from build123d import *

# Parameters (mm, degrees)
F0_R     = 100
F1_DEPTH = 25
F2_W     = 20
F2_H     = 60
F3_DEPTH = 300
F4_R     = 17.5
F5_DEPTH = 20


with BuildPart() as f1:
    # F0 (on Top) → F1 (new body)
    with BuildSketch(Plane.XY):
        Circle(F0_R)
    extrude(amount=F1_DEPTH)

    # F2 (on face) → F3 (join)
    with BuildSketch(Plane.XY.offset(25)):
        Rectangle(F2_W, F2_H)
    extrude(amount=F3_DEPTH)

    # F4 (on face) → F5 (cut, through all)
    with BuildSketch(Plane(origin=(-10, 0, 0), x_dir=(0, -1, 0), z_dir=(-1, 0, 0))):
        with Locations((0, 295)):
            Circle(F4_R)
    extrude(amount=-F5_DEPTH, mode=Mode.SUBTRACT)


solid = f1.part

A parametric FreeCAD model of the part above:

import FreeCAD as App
import Part
import Sketcher

V = App.Vector


def add_polygon(sketch, points):
    """Adds a closed chain of lines whose ends are joined by coincident constraints."""
    first, n = sketch.GeometryCount, len(points)
    for a, b in zip(points, points[1:] + points[:1]):
        sketch.addGeometry(Part.LineSegment(App.Vector(*a, 0), App.Vector(*b, 0)), False)
    for i in range(n):
        sketch.addConstraint(Sketcher.Constraint("Coincident", first + i, 2, first + (i + 1) % n, 1))

doc = App.newDocument("Part")
params = doc.addObject("Spreadsheet::Sheet", "Params")
for row, (alias, value) in enumerate([
    ("sketch1_diameter", "200 mm"),
    ("pad1_length", "25 mm"),
    ("sketch2_width", "20 mm"),
    ("sketch2_height", "60 mm"),
    ("pad2_length", "300 mm"),
    ("sketch3_diameter", "35 mm"),
], start=1):
    params.set(f"A{row}", alias)
    params.set(f"B{row}", "=" + value)
    params.setAlias(f"B{row}", alias)

body = doc.addObject("PartDesign::Body", "Body")

# Sketch on XY plane
sketch1 = doc.addObject("Sketcher::SketchObject", "Sketch")
body.addObject(sketch1)
sketch1.AttachmentSupport = (doc.XY_Plane, [""])
sketch1.MapMode = "FlatFace"
sketch1.addGeometry(Part.Circle(V(0, 0, 0), V(0, 0, 1), 100), False)
sketch1.addConstraint([
    Sketcher.Constraint("Coincident", 0, 3, -1, 1),
    Sketcher.Constraint("Diameter", 0, 200.0),
])
sketch1.setExpression("Constraints[1]", "Params.sketch1_diameter")
pad1 = doc.addObject("PartDesign::Pad", "Pad")
body.addObject(pad1)
pad1.Profile = sketch1
pad1.setExpression("Length", "Params.pad1_length")

# Sketch on XY plane
sketch2 = doc.addObject("Sketcher::SketchObject", "Sketch001")
body.addObject(sketch2)
sketch2.AttachmentSupport = (doc.XY_Plane, [""])
sketch2.MapMode = "FlatFace"
sketch2.AttachmentOffset = App.Placement(V(0, 0, 25), App.Rotation())
add_polygon(sketch2, [(-10, 30), (-10, -30), (10, -30), (10, 30)])  # lines 0-3
sketch2.addConstraint([
    Sketcher.Constraint("Vertical", 0),
    Sketcher.Constraint("Horizontal", 1),
    Sketcher.Constraint("Vertical", 2),
    Sketcher.Constraint("Horizontal", 3),
    Sketcher.Constraint("Symmetric", 0, 2, 2, 2, -1, 1),
    Sketcher.Constraint("DistanceX", 1, 1, 1, 2, 20.0),
    Sketcher.Constraint("DistanceY", 0, 2, 0, 1, 60.0),
])
sketch2.setExpression("Constraints[9]", "Params.sketch2_width")
sketch2.setExpression("Constraints[10]", "Params.sketch2_height")
pad2 = doc.addObject("PartDesign::Pad", "Pad001")
body.addObject(pad2)
pad2.Profile = sketch2
pad2.setExpression("Length", "Params.pad2_length")

# Sketch on YZ plane
sketch3 = doc.addObject("Sketcher::SketchObject", "Sketch002")
body.addObject(sketch3)
sketch3.AttachmentSupport = (doc.YZ_Plane, [""])
sketch3.MapMode = "FlatFace"
sketch3.AttachmentOffset = App.Placement(V(0, 0, -10), App.Rotation())
sketch3.addGeometry(Part.Circle(V(0, 295, 0), V(0, 0, 1), 18), False)
sketch3.addConstraint([
    Sketcher.Constraint("PointOnObject", 0, 3, -2),
    Sketcher.Constraint("Diameter", 0, 35.0),
    Sketcher.Constraint("DistanceY", -1, 1, 0, 3, 295.0),
])
sketch3.setExpression("Constraints[1]", "Params.sketch3_diameter")
pocket1 = doc.addObject("PartDesign::Pocket", "Pocket")
body.addObject(pocket1)
pocket1.Profile = sketch3
pocket1.Type = "ThroughAll"
pocket1.Reversed = True

doc.recompute()
